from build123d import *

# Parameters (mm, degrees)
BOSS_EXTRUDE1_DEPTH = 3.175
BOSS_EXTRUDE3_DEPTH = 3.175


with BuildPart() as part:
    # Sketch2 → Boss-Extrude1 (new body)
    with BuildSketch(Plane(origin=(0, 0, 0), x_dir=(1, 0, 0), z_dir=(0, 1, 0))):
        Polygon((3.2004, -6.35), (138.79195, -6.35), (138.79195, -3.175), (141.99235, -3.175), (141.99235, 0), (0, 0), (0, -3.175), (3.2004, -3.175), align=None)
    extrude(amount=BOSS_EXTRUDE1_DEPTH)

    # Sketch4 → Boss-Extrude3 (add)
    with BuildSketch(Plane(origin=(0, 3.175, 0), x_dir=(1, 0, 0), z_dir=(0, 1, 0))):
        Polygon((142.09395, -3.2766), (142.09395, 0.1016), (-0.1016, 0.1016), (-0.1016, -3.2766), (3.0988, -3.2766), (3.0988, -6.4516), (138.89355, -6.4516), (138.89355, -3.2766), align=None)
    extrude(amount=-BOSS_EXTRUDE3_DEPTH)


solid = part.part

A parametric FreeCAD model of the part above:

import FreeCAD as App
import Part
import Sketcher
from FreeCAD import Vector
Q = App.Units.Quantity


def add_polygon(sketch, points):
    """Adds a closed chain of lines whose ends are joined by coincident constraints."""
    first, n = sketch.GeometryCount, len(points)
    for a, b in zip(points, points[1:] + points[:1]):
        sketch.addGeometry(Part.LineSegment(App.Vector(*a, 0), App.Vector(*b, 0)), False)
    for i in range(n):
        sketch.addConstraint(Sketcher.Constraint("Coincident", first + i, 2, first + (i + 1) % n, 1))

doc = App.newDocument("Part")
body = doc.addObject("PartDesign::Body", "Body")

# Sketch on XZ plane
sketch1 = doc.addObject("Sketcher::SketchObject", "Sketch")
body.addObject(sketch1)
sketch1.AttachmentSupport = (doc.XZ_Plane, [""])
sketch1.MapMode = "FlatFace"
add_polygon(sketch1, [(3.2004, 6.35), (138.79195, 6.35), (138.79195, 3.175), (141.99235, 3.175), (141.99235, 0), (0, 0), (0, 3.175), (3.2004, 3.175)])  # lines 0-7
sketch1.addConstraint(Sketcher.Constraint("Horizontal", 0))
sketch1.addConstraint(Sketcher.Constraint("Vertical", 1))
sketch1.addConstraint(Sketcher.Constraint("Horizontal", 2))
sketch1.addConstraint(Sketcher.Constraint("Vertical", 3))
sketch1.addConstraint(Sketcher.Constraint("Horizontal", 4))
sketch1.addConstraint(Sketcher.Constraint("Vertical", 5))
sketch1.addConstraint(Sketcher.Constraint("Horizontal", 6))
sketch1.addConstraint(Sketcher.Constraint("Vertical", 7))
sketch1.addConstraint(Sketcher.Constraint("Coincident", 4, 2, -1, 1))
sketch1.addConstraint(Sketcher.Constraint("Horizontal", 2, 2, 5, 2))
sketch1.addConstraint(Sketcher.Constraint("Equal", 2, 6))
sketch1.addConstraint(Sketcher.Constraint("Equal", 1, 3))
sketch1.addConstraint(Sketcher.Constraint("DistanceX", 2, 1, 2, 2, Q("0.126 in")))
sketch1.addConstraint(Sketcher.Constraint("DistanceY", 1, 2, 1, 1, Q("0.125 in")))
sketch1.addConstraint(Sketcher.Constraint("DistanceX", 0, 1, 0, 2, Q("135.59155 mm")))
pad1 = doc.addObject("PartDesign::Pad", "Pad")
body.addObject(pad1)
pad1.Profile = sketch1
pad1.Length = Q("0.125 in")
pad1.Reversed = True

# Sketch on XZ plane
sketch2 = doc.addObject("Sketcher::SketchObject", "Sketch001")
body.addObject(sketch2)
sketch2.AttachmentSupport = (doc.XZ_Plane, [""])
sketch2.MapMode = "FlatFace"
sketch2.AttachmentOffset = App.Placement(Vector(0, 0, -0.125 * 25.4), App.Rotation())
add_polygon(sketch2, [(142.09395, 3.2766), (142.09395, -0.1016), (-0.1016, -0.1016), (-0.1016, 3.2766), (3.0988, 3.2766), (3.0988, 6.4516), (138.89355, 6.4516), (138.89355, 3.2766)])  # lines 0-7
sketch2.addConstraint(Sketcher.Constraint("Vertical", 0))
sketch2.addConstraint(Sketcher.Constraint("Horizontal", 1))
sketch2.addConstraint(Sketcher.Constraint("Vertical", 2))
sketch2.addConstraint(Sketcher.Constraint("Horizontal", 3))
sketch2.addConstraint(Sketcher.Constraint("Vertical", 4))
sketch2.addConstraint(Sketcher.Constraint("Horizontal", 5))
sketch2.addConstraint(Sketcher.Constraint("Vertical", 6))
sketch2.addConstraint(Sketcher.Constraint("Horizontal", 7))
sketch2.addConstraint(Sketcher.Constraint("Horizontal", 3, 2, 6, 2))
sketch2.addConstraint(Sketcher.Constraint("Equal", 3, 7))
sketch2.addConstraint(Sketcher.Constraint("DistanceX", 3, 1, 3, 2, Q("0.126 in")))
sketch2.addConstraint(Sketcher.Constraint("DistanceY", 0, 2, 0, 1, Q("0.133 in")))
sketch2.addConstraint(Sketcher.Constraint("DistanceY", 4, 1, 4, 2, Q("0.125 in")))
sketch2.addConstraint(Sketcher.Constraint("DistanceY", 0, 2, -1, 1, Q("0.004 in")))
sketch2.addConstraint(Sketcher.Constraint("DistanceX", 1, 2, -1, 1, Q("0.004 in")))
sketch2.addConstraint(Sketcher.Constraint("DistanceX", 1, 2, 1, 1, Q("142.19555 mm")))
pad2 = doc.addObject("PartDesign::Pad", "Pad001")
body.addObject(pad2)
pad2.Profile = sketch2
pad2.Length = Q("0.125 in")

doc.recompute()
